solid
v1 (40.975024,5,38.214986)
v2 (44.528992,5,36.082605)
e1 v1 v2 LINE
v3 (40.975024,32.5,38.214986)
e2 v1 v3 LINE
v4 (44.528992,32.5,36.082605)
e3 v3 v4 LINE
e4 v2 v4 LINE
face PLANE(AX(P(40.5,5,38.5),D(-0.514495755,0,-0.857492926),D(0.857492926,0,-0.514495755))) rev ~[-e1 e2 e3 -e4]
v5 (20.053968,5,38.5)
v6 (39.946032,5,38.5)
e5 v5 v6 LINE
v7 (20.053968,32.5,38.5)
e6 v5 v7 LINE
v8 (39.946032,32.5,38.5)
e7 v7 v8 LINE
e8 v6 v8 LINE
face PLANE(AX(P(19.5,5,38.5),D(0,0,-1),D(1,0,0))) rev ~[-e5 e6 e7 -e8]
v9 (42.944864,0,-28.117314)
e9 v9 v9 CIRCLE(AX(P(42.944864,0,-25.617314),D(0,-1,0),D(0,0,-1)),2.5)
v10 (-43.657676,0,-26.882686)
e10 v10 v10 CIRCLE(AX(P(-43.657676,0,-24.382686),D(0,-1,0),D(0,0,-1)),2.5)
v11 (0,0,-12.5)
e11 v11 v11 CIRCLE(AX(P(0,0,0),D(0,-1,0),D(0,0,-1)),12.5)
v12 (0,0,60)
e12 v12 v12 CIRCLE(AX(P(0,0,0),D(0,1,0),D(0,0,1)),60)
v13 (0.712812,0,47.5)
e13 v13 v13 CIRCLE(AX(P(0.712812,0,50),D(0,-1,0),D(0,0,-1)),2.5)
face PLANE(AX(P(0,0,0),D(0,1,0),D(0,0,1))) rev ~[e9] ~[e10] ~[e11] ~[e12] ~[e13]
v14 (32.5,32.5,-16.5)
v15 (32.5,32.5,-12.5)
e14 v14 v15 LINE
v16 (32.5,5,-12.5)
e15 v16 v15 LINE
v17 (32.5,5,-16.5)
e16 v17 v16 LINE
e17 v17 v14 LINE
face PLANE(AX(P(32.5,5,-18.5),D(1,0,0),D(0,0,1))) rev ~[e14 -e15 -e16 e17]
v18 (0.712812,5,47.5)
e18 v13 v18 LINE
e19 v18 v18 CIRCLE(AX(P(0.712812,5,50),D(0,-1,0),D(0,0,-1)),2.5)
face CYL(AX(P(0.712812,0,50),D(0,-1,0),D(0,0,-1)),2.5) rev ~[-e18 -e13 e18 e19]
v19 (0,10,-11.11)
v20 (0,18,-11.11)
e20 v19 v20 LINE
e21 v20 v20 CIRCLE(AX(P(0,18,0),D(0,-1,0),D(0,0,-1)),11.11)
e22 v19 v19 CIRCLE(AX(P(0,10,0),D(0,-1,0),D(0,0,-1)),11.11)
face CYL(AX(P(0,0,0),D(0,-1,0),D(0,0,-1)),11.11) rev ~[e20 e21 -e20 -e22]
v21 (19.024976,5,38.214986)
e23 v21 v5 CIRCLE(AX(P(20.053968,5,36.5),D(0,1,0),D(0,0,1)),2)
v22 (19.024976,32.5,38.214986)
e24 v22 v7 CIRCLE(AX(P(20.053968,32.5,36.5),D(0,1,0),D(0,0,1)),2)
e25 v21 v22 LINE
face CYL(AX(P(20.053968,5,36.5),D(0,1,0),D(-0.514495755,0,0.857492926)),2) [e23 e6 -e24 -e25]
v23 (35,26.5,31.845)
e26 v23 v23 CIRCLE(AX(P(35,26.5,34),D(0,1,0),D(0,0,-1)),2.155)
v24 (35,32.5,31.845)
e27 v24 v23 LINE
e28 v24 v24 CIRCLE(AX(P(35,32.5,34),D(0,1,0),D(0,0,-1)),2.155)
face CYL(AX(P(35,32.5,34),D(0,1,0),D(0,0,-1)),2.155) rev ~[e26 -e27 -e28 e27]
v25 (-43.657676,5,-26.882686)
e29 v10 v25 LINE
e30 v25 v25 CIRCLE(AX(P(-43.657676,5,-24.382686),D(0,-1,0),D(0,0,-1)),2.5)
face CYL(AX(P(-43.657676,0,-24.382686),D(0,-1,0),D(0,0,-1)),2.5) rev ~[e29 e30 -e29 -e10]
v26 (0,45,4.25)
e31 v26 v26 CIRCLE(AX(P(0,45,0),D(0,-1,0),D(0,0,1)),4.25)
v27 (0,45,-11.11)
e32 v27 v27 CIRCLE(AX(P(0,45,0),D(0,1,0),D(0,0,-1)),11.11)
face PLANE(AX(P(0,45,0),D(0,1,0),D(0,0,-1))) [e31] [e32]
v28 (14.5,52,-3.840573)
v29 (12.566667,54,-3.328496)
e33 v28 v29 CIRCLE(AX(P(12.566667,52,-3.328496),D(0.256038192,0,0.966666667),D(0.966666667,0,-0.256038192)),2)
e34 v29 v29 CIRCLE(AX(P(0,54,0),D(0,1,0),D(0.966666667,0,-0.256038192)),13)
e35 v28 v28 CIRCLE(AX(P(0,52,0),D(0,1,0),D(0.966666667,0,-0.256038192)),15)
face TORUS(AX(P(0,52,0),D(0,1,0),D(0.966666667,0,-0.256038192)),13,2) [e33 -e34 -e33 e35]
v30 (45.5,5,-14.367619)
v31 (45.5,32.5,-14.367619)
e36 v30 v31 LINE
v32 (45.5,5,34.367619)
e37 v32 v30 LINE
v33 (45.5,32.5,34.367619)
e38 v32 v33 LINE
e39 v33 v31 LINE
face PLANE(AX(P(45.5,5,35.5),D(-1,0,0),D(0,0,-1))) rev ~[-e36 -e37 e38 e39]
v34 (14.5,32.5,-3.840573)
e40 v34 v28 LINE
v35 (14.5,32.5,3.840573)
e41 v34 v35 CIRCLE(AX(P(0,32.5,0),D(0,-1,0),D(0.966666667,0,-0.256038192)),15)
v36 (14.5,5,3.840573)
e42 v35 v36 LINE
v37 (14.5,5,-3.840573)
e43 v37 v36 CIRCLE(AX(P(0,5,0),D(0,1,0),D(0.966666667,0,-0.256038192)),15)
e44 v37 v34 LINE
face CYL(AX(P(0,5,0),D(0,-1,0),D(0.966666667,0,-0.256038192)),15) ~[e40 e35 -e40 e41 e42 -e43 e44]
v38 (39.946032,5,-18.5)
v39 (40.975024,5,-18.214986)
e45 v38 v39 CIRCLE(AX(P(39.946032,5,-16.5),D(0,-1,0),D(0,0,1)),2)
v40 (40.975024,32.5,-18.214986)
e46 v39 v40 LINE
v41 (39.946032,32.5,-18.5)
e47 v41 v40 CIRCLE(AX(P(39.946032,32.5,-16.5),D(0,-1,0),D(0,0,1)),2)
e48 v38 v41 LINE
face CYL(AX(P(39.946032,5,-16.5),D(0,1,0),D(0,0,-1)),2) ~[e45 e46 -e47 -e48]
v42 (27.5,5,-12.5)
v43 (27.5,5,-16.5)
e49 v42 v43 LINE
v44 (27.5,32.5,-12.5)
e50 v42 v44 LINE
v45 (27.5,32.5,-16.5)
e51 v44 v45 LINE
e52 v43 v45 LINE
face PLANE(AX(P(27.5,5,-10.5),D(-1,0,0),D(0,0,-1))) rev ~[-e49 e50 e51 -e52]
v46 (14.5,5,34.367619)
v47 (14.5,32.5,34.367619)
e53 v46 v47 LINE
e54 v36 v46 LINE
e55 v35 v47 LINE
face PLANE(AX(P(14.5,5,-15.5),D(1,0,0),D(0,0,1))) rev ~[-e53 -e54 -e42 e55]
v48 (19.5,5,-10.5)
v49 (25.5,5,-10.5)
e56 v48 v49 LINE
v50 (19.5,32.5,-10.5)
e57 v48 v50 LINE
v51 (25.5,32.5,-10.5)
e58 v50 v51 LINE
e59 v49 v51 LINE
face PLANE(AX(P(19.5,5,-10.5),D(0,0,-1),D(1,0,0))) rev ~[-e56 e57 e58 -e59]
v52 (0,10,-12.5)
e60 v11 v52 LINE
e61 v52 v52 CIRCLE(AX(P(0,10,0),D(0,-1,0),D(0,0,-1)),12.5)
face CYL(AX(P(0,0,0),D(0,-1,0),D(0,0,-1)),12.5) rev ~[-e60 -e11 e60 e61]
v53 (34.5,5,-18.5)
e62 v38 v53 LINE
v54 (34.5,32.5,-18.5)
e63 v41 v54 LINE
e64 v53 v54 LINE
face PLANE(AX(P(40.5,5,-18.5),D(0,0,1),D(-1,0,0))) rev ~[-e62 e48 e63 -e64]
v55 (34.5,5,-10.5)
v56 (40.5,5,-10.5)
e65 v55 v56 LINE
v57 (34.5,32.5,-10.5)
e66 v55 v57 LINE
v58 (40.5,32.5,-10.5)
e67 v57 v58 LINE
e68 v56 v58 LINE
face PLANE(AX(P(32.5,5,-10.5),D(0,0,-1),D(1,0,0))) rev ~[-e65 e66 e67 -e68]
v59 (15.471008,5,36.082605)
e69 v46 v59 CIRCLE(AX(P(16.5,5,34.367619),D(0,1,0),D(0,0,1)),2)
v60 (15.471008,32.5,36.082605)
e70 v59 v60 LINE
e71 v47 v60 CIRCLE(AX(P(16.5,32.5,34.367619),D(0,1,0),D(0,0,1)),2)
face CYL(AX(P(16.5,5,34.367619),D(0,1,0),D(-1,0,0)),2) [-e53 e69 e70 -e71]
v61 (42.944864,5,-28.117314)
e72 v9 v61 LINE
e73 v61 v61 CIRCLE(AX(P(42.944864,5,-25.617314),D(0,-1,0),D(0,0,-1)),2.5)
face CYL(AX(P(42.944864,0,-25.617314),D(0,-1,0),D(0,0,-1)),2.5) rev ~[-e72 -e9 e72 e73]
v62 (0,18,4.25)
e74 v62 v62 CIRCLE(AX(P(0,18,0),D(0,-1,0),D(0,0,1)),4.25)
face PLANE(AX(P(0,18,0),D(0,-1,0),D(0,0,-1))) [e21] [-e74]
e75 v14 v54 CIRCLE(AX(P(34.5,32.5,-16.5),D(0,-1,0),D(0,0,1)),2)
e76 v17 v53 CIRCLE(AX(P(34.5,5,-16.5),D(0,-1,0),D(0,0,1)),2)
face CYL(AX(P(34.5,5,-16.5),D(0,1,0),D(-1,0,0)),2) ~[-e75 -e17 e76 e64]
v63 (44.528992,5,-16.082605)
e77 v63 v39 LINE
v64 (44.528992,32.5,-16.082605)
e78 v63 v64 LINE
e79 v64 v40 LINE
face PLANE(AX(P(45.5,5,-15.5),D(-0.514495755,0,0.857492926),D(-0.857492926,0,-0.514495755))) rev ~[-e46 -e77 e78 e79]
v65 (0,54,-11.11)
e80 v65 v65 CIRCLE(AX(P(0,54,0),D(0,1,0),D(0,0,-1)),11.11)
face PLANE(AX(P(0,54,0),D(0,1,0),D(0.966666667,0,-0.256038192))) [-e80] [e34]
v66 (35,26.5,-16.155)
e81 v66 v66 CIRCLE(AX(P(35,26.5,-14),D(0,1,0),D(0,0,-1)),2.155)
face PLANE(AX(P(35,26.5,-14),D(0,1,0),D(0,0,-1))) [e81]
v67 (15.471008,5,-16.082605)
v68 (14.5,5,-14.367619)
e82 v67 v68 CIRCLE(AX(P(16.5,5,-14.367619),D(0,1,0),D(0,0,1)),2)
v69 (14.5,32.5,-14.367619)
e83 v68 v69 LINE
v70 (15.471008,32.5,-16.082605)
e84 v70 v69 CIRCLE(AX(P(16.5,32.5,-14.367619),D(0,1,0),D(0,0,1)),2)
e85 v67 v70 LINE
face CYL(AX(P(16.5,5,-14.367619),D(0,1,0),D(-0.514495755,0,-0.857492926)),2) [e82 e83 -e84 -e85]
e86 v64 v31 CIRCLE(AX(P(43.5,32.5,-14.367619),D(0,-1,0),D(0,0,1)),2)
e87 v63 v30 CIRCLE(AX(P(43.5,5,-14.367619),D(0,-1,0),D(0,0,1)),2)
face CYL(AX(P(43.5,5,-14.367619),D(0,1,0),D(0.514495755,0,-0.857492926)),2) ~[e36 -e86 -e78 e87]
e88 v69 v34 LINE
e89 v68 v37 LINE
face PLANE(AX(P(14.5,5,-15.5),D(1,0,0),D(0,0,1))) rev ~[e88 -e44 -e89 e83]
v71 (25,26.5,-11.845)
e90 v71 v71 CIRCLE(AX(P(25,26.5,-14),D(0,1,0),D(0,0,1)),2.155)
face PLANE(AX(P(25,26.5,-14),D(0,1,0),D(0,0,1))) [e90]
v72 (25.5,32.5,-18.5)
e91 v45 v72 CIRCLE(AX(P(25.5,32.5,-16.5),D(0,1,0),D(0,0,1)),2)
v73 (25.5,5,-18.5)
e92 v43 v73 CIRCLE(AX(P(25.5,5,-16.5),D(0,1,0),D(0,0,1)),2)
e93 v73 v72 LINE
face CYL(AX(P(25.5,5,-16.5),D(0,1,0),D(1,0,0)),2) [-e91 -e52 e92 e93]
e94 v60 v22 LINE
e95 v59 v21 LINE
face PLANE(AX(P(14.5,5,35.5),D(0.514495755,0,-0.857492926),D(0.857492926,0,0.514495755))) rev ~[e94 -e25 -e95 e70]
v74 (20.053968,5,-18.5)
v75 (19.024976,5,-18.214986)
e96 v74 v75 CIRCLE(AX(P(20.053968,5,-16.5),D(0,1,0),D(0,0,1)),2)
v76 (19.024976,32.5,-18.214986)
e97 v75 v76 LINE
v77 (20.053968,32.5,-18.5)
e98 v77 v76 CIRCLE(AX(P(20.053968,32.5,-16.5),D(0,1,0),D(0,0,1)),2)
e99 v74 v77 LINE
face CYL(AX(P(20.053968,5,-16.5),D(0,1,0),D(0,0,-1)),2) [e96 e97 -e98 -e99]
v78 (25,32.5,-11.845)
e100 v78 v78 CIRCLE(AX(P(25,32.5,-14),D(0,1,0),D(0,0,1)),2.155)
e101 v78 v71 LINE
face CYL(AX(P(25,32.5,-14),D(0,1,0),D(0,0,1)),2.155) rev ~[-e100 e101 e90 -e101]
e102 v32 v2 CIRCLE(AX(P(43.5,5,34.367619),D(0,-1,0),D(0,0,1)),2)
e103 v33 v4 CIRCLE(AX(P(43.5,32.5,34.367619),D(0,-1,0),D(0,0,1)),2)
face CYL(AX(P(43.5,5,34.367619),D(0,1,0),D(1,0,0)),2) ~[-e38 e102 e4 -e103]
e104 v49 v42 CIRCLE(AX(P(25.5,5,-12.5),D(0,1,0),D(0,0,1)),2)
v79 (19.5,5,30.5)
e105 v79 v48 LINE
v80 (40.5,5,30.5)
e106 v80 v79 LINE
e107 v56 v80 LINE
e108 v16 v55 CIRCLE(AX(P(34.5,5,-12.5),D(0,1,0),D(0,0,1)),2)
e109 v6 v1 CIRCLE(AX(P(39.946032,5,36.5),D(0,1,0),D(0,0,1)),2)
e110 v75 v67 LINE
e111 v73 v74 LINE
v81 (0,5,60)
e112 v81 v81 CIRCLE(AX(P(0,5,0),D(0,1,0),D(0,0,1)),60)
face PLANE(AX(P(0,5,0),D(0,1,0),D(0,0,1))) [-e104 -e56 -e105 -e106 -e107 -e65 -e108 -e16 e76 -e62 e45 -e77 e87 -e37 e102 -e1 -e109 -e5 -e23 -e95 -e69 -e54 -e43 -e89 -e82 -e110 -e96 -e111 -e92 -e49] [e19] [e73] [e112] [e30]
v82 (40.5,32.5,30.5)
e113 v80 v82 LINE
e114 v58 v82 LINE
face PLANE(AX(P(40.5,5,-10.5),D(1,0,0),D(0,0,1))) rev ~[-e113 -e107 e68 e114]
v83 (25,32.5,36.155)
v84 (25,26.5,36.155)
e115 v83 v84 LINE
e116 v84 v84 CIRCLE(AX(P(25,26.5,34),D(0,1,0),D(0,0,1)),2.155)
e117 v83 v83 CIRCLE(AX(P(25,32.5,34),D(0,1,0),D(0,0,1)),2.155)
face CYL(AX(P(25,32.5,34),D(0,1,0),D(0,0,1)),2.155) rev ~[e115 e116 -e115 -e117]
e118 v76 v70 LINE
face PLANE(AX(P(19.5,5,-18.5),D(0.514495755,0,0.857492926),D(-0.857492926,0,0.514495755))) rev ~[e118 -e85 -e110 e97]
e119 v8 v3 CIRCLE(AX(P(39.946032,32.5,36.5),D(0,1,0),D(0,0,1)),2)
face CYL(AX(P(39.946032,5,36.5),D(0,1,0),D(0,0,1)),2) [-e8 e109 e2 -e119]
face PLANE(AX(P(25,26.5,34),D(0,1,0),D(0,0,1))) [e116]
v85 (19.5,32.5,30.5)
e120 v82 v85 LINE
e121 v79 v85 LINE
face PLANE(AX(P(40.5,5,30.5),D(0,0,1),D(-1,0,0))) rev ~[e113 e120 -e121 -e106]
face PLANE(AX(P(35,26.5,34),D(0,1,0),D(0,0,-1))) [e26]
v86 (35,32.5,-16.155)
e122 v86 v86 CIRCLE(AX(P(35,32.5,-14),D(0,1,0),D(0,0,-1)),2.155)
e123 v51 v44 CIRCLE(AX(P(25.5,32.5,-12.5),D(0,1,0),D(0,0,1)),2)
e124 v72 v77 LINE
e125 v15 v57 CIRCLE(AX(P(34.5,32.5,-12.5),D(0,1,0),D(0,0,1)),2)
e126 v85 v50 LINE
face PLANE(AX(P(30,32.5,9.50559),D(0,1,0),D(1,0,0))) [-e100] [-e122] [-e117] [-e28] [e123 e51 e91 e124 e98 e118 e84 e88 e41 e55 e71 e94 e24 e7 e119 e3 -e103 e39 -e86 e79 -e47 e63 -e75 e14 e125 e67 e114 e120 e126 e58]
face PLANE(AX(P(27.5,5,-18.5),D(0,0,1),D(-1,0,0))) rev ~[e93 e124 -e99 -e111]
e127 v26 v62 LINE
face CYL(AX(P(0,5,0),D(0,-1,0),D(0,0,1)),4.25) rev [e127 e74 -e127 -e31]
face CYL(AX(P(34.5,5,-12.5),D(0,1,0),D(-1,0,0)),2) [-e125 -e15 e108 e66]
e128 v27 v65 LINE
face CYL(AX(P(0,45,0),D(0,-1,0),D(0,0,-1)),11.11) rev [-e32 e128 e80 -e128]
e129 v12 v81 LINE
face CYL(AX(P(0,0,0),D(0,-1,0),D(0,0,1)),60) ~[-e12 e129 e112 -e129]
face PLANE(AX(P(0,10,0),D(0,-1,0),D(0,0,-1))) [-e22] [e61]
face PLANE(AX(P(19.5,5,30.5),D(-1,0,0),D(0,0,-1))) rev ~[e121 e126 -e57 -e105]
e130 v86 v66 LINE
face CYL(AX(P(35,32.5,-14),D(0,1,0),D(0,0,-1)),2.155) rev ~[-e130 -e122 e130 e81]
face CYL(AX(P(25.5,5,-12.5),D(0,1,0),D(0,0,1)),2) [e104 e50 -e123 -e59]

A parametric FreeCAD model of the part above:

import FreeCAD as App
import Part
import Sketcher
from FreeCAD import Vector


def edges_at(feature, points):
    """Names of the edges that pass closest to the given points."""
    edges = feature.Shape.Edges
    near = lambda p: min(range(len(edges)), key=lambda i: edges[i].distToShape(Part.Vertex(*p))[0])
    return sorted({f"Edge{near(p) + 1}" for p in points})

doc = App.newDocument("Part")
body = doc.addObject("PartDesign::Body", "Body")

sketch1 = doc.addObject("Sketcher::SketchObject", "Sketch")
body.addObject(sketch1)
sketch1.AttachmentSupport = (doc.XZ_Plane, [""])
sketch1.MapMode = "FlatFace"
sketch1.addGeometry([
    Part.Circle(Vector(0, 0, 0), Vector(0, 0, 1), 60),
    Part.Circle(Vector(0, 0, 0), Vector(0, 0, 1), 4.25),
], False)
sketch1.addConstraint([
    Sketcher.Constraint("Coincident", 0, 3, -1, 1),
    Sketcher.Constraint("Coincident", 1, 3, -1, 1),
    Sketcher.Constraint("Diameter", 0, 120.0),
    Sketcher.Constraint("Diameter", 1, 8.5),
])
pad1 = doc.addObject("PartDesign::Pad", "Pad")
body.addObject(pad1)
pad1.Profile = sketch1
pad1.Length = 5
pad1.Reversed = True

sketch2 = doc.addObject("Sketcher::SketchObject", "Sketch001")
body.addObject(sketch2)
sketch2.AttachmentSupport = (doc.XZ_Plane, [""])
sketch2.MapMode = "FlatFace"
sketch2.AttachmentOffset = App.Placement(Vector(0, 0, -5), App.Rotation())
sketch2.addGeometry([
    Part.LineSegment(Vector(19.5, -10.5, 0), Vector(27.5, -10.5, 0)),
    Part.LineSegment(Vector(27.5, -10.5, 0), Vector(27.5, -18.5, 0)),
    Part.LineSegment(Vector(27.5, -18.5, 0), Vector(19.5, -18.5, 0)),
    Part.LineSegment(Vector(19.5, -18.5, 0), Vector(14.5, -15.5, 0)),
    Part.LineSegment(Vector(14.5, -15.5, 0), Vector(14.5, 35.5, 0)),
    Part.LineSegment(Vector(14.5, 35.5, 0), Vector(19.5, 38.5, 0)),
    Part.LineSegment(Vector(19.5, 38.5, 0), Vector(40.5, 38.5, 0)),
    Part.LineSegment(Vector(40.5, 38.5, 0), Vector(45.5, 35.5, 0)),
    Part.LineSegment(Vector(45.5, 35.5, 0), Vector(45.5, -15.5, 0)),
    Part.LineSegment(Vector(45.5, -15.5, 0), Vector(40.5, -18.5, 0)),
    Part.LineSegment(Vector(40.5, -18.5, 0), Vector(32.5, -18.5, 0)),
    Part.LineSegment(Vector(32.5, -18.5, 0), Vector(32.5, -10.5, 0)),
    Part.LineSegment(Vector(32.5, -10.5, 0), Vector(40.5, -10.5, 0)),
    Part.LineSegment(Vector(40.5, -10.5, 0), Vector(40.5, 30.5, 0)),
    Part.LineSegment(Vector(40.5, 30.5, 0), Vector(19.5, 30.5, 0)),
    Part.LineSegment(Vector(19.5, 30.5, 0), Vector(19.5, -10.5, 0)),
], False)
sketch2.addConstraint([
    Sketcher.Constraint("Coincident", 0, 2, 1, 1),
    Sketcher.Constraint("Coincident", 1, 2, 2, 1),
    Sketcher.Constraint("Coincident", 2, 2, 3, 1),
    Sketcher.Constraint("Coincident", 3, 2, 4, 1),
    Sketcher.Constraint("Coincident", 4, 2, 5, 1),
    Sketcher.Constraint("Coincident", 5, 2, 6, 1),
    Sketcher.Constraint("Coincident", 6, 2, 7, 1),
    Sketcher.Constraint("Coincident", 7, 2, 8, 1),
    Sketcher.Constraint("Coincident", 8, 2, 9, 1),
    Sketcher.Constraint("Coincident", 9, 2, 10, 1),
    Sketcher.Constraint("Coincident", 10, 2, 11, 1),
    Sketcher.Constraint("Coincident", 11, 2, 12, 1),
    Sketcher.Constraint("Coincident", 12, 2, 13, 1),
    Sketcher.Constraint("Coincident", 13, 2, 14, 1),
    Sketcher.Constraint("Coincident", 14, 2, 15, 1),
    Sketcher.Constraint("Coincident", 15, 2, 0, 1),
    Sketcher.Constraint("Horizontal", 0),
    Sketcher.Constraint("Vertical", 1),
    Sketcher.Constraint("Horizontal", 2),
    Sketcher.Constraint("Vertical", 4),
    Sketcher.Constraint("Horizontal", 6),
    Sketcher.Constraint("Vertical", 8),
    Sketcher.Constraint("Horizontal", 10),
    Sketcher.Constraint("Vertical", 11),
    Sketcher.Constraint("Horizontal", 12),
    Sketcher.Constraint("Vertical", 13),
    Sketcher.Constraint("Horizontal", 14),
    Sketcher.Constraint("Vertical", 15),
    Sketcher.Constraint("Parallel", 3, 7),
    Sketcher.Constraint("Parallel", 5, 9),
    Sketcher.Constraint("Horizontal", 4, 2, 7, 2),
    Sketcher.Constraint("Horizontal", 3, 2, 8, 2),
    Sketcher.Constraint("Horizontal", 2, 2, 9, 2),
    Sketcher.Constraint("Horizontal", 0, 2, 11, 2),
    Sketcher.Constraint("Vertical", 2, 2, 5, 2),
    Sketcher.Constraint("Vertical", 6, 2, 9, 2),
    Sketcher.Constraint("Vertical", 9, 2, 12, 2),
    Sketcher.Constraint("Vertical", 5, 2, 14, 2),
    Sketcher.Constraint("Equal", 2, 10),
    Sketcher.Constraint("Equal", 12, 1),
    Sketcher.Constraint("DistanceX", 0, 1, 0, 2, 8.0),
    Sketcher.Constraint("DistanceX", 6, 1, 6, 2, 21.0),
    Sketcher.Constraint("DistanceY", 4, 1, 4, 2, 51.0),
    Sketcher.Constraint("DistanceY", 13, 1, 13, 2, 41.0),
    Sketcher.Constraint("DistanceX", 3, 2, 2, 2, 5.0),
    Sketcher.Constraint("DistanceY", 2, 2, 3, 2, 3.0),
    Sketcher.Constraint("DistanceX", -1, 1, 0, 2, 27.5),
    Sketcher.Constraint("DistanceY", 0, 2, -1, 1, 10.5),
])
pad2 = doc.addObject("PartDesign::Pad", "Pad001")
body.addObject(pad2)
pad2.Profile = sketch2
pad2.Length = 27.5
pad2.Reversed = True

sketch3 = doc.addObject("Sketcher::SketchObject", "Sketch002")
body.addObject(sketch3)
sketch3.AttachmentSupport = (doc.XZ_Plane, [""])
sketch3.MapMode = "FlatFace"
sketch3.AttachmentOffset = App.Placement(Vector(0, 0, -32.5), App.Rotation())
sketch3.addGeometry([
    Part.Circle(Vector(25, 34, 0), Vector(0, 0, 1), 2.155),
    Part.Circle(Vector(25, -14, 0), Vector(0, 0, 1), 2.155),
    Part.Circle(Vector(35, 34, 0), Vector(0, 0, 1), 2.155),
    Part.Circle(Vector(35, -14, 0), Vector(0, 0, 1), 2.155),
], False)
sketch3.addConstraint([
    Sketcher.Constraint("Equal", 0, 1),
    Sketcher.Constraint("Equal", 1, 2),
    Sketcher.Constraint("Equal", 2, 3),
    Sketcher.Constraint("Horizontal", 0, 3, 2, 3),
    Sketcher.Constraint("Horizontal", 1, 3, 3, 3),
    Sketcher.Constraint("Vertical", 0, 3, 1, 3),
    Sketcher.Constraint("Vertical", 2, 3, 3, 3),
    Sketcher.Constraint("Diameter", 0, 4.31),
    Sketcher.Constraint("DistanceX", -1, 1, 0, 3, 25.0),
    Sketcher.Constraint("DistanceY", -1, 1, 0, 3, 34.0),
    Sketcher.Constraint("DistanceY", 1, 3, -1, 1, 14.0),
    Sketcher.Constraint("DistanceX", -1, 1, 2, 3, 35.0),
])
pocket1 = doc.addObject("PartDesign::Pocket", "Pocket")
body.addObject(pocket1)
pocket1.Profile = sketch3
pocket1.Length = 6
pocket1.Reversed = True

sketch4 = doc.addObject("Sketcher::SketchObject", "Sketch003")
body.addObject(sketch4)
sketch4.AttachmentSupport = (doc.XZ_Plane, [""])
sketch4.MapMode = "FlatFace"
sketch4.AttachmentOffset = App.Placement(Vector(0, 0, -5), App.Rotation())
sketch4.addGeometry([
    Part.Circle(Vector(0, 0, 0), Vector(0, 0, 1), 15),
    Part.Circle(Vector(0, 0, 0), Vector(0, 0, 1), 4.25),
], False)
sketch4.addConstraint([
    Sketcher.Constraint("Coincident", 0, 3, -1, 1),
    Sketcher.Constraint("Coincident", 1, 3, -1, 1),
    Sketcher.Constraint("Diameter", 0, 30.0),
    Sketcher.Constraint("Diameter", 1, 8.5),
])
pad3 = doc.addObject("PartDesign::Pad", "Pad002")
body.addObject(pad3)
pad3.Profile = sketch4
pad3.Length = 49
pad3.Reversed = True

sketch5 = doc.addObject("Sketcher::SketchObject", "Sketch004")
body.addObject(sketch5)
sketch5.AttachmentSupport = (doc.XZ_Plane, [""])
sketch5.MapMode = "FlatFace"
sketch5.addGeometry(Part.Circle(Vector(0, 0, 0), Vector(0, 0, 1), 11.11), False)
sketch5.addConstraint([
    Sketcher.Constraint("Coincident", 0, 3, -1, 1),
    Sketcher.Constraint("Diameter", 0, 22.22),
])
pocket2 = doc.addObject("PartDesign::Pocket", "Pocket001")
body.addObject(pocket2)
pocket2.Profile = sketch5
pocket2.Length = 18

sketch6 = doc.addObject("Sketcher::SketchObject", "Sketch005")
body.addObject(sketch6)
sketch6.AttachmentSupport = (doc.XZ_Plane, [""])
sketch6.MapMode = "FlatFace"
sketch6.AttachmentOffset = App.Placement(Vector(0, 0, -45), App.Rotation())
sketch6.addGeometry(Part.Circle(Vector(0, 0, 0), Vector(0, 0, 1), 11.11), False)
sketch6.addConstraint([
    Sketcher.Constraint("Coincident", 0, 3, -1, 1),
    Sketcher.Constraint("Diameter", 0, 22.22),
])
pocket3 = doc.addObject("PartDesign::Pocket", "Pocket002")
body.addObject(pocket3)
pocket3.Profile = sketch6
pocket3.Length = 9

sketch7 = doc.addObject("Sketcher::SketchObject", "Sketch006")
body.addObject(sketch7)
sketch7.AttachmentSupport = (doc.XZ_Plane, [""])
sketch7.MapMode = "FlatFace"
sketch7.addGeometry(Part.Circle(Vector(0, 0, 0), Vector(0, 0, 1), 12.5), False)
sketch7.addConstraint([
    Sketcher.Constraint("Coincident", 0, 3, -1, 1),
    Sketcher.Constraint("Diameter", 0, 25.0),
])
pocket4 = doc.addObject("PartDesign::Pocket", "Pocket003")
body.addObject(pocket4)
pocket4.Profile = sketch7
pocket4.Length = 10
doc.recompute()

fillet = doc.addObject("PartDesign::Fillet", "Fillet")
body.addObject(fillet)
fillet.Base = (pocket4, edges_at(pocket4, [(27.5, 18.75, -10.5), (32.5, 18.75, -10.5)]))
fillet.Radius = 2
doc.recompute()

fillet2 = doc.addObject("PartDesign::Fillet", "Fillet001")
body.addObject(fillet2)
fillet2.Base = (fillet, edges_at(fillet, [
    (27.5, 18.75, -18.5),
    (19.5, 18.75, -18.5),
    (14.5, 18.75, -15.5),
    (14.5, 18.75, 35.5),
    (19.5, 18.75, 38.5),
    (40.5, 18.75, 38.5),
    (45.5, 18.75, 35.5),
    (45.5, 18.75, -15.5),
    (40.5, 18.75, -18.5),
    (32.5, 18.75, -18.5),
]))
fillet2.Radius = 2
doc.recompute()

fillet3 = doc.addObject("PartDesign::Fillet", "Fillet002")
body.addObject(fillet3)
fillet3.Base = (fillet2, edges_at(fillet2, [(-14.5, 54, 3.841)]))
fillet3.Radius = 2

sketch8 = doc.addObject("Sketcher::SketchObject", "Sketch007")
body.addObject(sketch8)
sketch8.AttachmentSupport = (doc.XZ_Plane, [""])
sketch8.MapMode = "FlatFace"
sketch8.addGeometry([
    Part.Circle(Vector(0.712812, 50, 0), Vector(0, 0, 1), 2.5),
    Part.Circle(Vector(42.944864, -25.617314, 0), Vector(0, 0, 1), 2.5),
    Part.Circle(Vector(-43.657676, -24.382686, 0), Vector(0, 0, 1), 2.5),
], False)
sketch8.addConstraint([
    Sketcher.Constraint("Equal", 0, 1),
    Sketcher.Constraint("Equal", 1, 2),
    Sketcher.Constraint("Diameter", 0, 5.0),
    Sketcher.Constraint("DistanceY", -1, 1, 0, 3, 50.0),
    Sketcher.Constraint("DistanceX", 0, 3, 1, 3, 42.232052),
    Sketcher.Constraint("DistanceX", 2, 3, 0, 3, 44.370489),
    Sketcher.Constraint("DistanceX", -1, 1, 0, 3, 0.712812),
    Sketcher.Constraint("DistanceY", 1, 3, -1, 1, 25.617314),
    Sketcher.Constraint("DistanceY", 2, 3, -1, 1, 24.382686),
])
pocket5 = doc.addObject("PartDesign::Pocket", "Pocket004")
body.addObject(pocket5)
pocket5.Profile = sketch8
pocket5.Length = 10

doc.recompute()
